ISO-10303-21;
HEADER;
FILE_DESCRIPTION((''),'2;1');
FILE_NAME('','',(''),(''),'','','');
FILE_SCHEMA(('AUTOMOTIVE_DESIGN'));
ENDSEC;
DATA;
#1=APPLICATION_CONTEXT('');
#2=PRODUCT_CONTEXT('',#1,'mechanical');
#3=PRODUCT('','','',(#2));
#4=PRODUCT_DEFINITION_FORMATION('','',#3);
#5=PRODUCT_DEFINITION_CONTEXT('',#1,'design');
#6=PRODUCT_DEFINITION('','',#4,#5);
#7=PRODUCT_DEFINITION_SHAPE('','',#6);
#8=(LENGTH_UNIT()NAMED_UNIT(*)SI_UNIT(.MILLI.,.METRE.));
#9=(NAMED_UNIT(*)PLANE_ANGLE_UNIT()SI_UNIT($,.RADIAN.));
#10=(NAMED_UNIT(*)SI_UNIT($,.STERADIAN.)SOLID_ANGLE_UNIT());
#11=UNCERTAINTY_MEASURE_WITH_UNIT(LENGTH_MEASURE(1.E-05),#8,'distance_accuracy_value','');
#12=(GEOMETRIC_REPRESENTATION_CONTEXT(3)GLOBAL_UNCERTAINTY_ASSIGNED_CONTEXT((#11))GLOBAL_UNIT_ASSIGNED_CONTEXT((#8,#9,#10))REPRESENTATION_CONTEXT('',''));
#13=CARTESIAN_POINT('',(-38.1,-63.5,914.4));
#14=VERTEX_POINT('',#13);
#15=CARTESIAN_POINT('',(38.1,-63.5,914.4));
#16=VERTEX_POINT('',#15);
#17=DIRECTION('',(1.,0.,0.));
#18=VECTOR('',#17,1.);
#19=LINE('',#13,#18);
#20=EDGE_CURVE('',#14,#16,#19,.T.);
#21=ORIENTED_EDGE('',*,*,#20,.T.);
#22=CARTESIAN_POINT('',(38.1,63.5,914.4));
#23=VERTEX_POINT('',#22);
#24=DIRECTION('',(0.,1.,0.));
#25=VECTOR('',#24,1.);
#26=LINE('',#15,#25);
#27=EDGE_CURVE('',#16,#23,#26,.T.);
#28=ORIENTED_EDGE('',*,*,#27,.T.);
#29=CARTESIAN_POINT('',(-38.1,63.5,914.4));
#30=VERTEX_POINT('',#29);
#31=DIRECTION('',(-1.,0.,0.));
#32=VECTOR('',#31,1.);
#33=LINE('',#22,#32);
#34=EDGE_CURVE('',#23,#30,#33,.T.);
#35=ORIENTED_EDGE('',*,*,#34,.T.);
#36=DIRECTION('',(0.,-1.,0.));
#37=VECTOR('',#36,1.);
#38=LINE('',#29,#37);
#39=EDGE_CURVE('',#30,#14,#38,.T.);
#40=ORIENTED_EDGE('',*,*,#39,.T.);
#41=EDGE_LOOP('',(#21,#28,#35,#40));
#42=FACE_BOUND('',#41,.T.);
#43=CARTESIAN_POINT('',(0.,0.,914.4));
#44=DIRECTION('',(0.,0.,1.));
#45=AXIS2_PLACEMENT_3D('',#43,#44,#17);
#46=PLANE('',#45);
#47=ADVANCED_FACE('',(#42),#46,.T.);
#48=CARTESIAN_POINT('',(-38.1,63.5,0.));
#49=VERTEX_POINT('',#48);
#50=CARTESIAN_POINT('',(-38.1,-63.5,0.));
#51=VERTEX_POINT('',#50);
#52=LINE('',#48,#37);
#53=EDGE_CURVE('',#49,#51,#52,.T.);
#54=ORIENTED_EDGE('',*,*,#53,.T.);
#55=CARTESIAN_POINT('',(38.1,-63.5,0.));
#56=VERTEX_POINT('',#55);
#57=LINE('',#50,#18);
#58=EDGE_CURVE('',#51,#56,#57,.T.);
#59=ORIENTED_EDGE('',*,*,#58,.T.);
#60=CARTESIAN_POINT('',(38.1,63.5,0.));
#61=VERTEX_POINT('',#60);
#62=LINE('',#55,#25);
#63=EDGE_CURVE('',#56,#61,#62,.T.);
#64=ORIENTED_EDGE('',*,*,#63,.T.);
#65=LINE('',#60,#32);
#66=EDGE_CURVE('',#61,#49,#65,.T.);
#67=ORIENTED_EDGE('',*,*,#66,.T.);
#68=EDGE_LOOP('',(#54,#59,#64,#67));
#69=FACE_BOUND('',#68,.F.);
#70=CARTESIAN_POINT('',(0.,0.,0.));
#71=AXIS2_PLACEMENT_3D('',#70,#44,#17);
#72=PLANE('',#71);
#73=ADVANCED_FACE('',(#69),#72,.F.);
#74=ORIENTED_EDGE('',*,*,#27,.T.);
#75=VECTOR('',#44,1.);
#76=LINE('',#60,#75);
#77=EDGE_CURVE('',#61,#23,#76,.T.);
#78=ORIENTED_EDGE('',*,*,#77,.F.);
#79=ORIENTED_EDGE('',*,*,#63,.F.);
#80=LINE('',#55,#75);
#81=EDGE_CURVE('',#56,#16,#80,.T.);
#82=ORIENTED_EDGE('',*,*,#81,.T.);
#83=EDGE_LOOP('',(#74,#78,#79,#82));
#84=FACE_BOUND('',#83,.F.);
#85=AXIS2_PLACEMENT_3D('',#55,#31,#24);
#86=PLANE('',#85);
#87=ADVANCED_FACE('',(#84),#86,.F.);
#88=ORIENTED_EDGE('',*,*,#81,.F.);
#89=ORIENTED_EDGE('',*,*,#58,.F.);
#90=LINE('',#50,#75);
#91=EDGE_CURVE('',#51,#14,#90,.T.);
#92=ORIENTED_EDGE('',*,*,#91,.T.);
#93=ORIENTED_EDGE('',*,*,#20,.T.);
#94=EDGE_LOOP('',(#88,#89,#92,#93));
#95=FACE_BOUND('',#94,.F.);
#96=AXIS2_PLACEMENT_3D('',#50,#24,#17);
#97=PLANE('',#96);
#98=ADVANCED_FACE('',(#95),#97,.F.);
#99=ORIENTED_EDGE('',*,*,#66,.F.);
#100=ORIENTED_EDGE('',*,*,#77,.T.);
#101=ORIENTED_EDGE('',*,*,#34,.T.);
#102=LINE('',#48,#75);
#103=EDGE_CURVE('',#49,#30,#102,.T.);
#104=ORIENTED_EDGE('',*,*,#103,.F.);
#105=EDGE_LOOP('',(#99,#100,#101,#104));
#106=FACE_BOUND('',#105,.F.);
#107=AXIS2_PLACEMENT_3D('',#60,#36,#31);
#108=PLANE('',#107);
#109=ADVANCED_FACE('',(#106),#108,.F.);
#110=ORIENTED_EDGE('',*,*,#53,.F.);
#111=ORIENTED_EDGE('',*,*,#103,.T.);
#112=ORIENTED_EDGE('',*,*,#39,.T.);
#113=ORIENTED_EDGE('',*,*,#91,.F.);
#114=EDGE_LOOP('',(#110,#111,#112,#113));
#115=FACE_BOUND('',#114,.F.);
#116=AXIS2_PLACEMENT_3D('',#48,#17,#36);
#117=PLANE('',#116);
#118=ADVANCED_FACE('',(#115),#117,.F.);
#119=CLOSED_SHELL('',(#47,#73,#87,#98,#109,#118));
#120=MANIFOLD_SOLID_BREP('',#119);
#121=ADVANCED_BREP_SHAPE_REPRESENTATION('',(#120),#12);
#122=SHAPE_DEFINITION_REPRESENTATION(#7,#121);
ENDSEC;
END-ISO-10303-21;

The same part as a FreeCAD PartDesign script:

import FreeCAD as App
import Part
import Sketcher
from FreeCAD import Vector
Q = App.Units.Quantity


def add_polygon(sketch, points):
    """Adds a closed chain of lines whose ends are joined by coincident constraints."""
    first, n = sketch.GeometryCount, len(points)
    for a, b in zip(points, points[1:] + points[:1]):
        sketch.addGeometry(Part.LineSegment(App.Vector(*a, 0), App.Vector(*b, 0)), False)
    for i in range(n):
        sketch.addConstraint(Sketcher.Constraint("Coincident", first + i, 2, first + (i + 1) % n, 1))

doc = App.newDocument("Part")
body = doc.addObject("PartDesign::Body", "Body")

sketch1 = body.newObject("Sketcher::SketchObject", "Sketch")
sketch1.AttachmentSupport = (doc.getObject("XY_Plane"), [""])
sketch1.MapMode = "FlatFace"
add_polygon(sketch1, [(-38.1, 63.5), (-38.1, -63.5), (38.1, -63.5), (38.1, 63.5)])
sketch1.addConstraint([
    Sketcher.Constraint("Vertical", 0),
    Sketcher.Constraint("Horizontal", 1),
    Sketcher.Constraint("Vertical", 2),
    Sketcher.Constraint("Horizontal", 3),
    Sketcher.Constraint("Symmetric", 0, 2, 2, 2, -1, 1),
    Sketcher.Constraint("DistanceX", 1, 1, 1, 2, Q("3 in")),
    Sketcher.Constraint("DistanceY", 0, 2, 0, 1, Q("5 in")),
])
pad1 = body.newObject("PartDesign::Pad", "Pad")
pad1.Profile = sketch1
pad1.Length = Q("36 in")

doc.recompute()
